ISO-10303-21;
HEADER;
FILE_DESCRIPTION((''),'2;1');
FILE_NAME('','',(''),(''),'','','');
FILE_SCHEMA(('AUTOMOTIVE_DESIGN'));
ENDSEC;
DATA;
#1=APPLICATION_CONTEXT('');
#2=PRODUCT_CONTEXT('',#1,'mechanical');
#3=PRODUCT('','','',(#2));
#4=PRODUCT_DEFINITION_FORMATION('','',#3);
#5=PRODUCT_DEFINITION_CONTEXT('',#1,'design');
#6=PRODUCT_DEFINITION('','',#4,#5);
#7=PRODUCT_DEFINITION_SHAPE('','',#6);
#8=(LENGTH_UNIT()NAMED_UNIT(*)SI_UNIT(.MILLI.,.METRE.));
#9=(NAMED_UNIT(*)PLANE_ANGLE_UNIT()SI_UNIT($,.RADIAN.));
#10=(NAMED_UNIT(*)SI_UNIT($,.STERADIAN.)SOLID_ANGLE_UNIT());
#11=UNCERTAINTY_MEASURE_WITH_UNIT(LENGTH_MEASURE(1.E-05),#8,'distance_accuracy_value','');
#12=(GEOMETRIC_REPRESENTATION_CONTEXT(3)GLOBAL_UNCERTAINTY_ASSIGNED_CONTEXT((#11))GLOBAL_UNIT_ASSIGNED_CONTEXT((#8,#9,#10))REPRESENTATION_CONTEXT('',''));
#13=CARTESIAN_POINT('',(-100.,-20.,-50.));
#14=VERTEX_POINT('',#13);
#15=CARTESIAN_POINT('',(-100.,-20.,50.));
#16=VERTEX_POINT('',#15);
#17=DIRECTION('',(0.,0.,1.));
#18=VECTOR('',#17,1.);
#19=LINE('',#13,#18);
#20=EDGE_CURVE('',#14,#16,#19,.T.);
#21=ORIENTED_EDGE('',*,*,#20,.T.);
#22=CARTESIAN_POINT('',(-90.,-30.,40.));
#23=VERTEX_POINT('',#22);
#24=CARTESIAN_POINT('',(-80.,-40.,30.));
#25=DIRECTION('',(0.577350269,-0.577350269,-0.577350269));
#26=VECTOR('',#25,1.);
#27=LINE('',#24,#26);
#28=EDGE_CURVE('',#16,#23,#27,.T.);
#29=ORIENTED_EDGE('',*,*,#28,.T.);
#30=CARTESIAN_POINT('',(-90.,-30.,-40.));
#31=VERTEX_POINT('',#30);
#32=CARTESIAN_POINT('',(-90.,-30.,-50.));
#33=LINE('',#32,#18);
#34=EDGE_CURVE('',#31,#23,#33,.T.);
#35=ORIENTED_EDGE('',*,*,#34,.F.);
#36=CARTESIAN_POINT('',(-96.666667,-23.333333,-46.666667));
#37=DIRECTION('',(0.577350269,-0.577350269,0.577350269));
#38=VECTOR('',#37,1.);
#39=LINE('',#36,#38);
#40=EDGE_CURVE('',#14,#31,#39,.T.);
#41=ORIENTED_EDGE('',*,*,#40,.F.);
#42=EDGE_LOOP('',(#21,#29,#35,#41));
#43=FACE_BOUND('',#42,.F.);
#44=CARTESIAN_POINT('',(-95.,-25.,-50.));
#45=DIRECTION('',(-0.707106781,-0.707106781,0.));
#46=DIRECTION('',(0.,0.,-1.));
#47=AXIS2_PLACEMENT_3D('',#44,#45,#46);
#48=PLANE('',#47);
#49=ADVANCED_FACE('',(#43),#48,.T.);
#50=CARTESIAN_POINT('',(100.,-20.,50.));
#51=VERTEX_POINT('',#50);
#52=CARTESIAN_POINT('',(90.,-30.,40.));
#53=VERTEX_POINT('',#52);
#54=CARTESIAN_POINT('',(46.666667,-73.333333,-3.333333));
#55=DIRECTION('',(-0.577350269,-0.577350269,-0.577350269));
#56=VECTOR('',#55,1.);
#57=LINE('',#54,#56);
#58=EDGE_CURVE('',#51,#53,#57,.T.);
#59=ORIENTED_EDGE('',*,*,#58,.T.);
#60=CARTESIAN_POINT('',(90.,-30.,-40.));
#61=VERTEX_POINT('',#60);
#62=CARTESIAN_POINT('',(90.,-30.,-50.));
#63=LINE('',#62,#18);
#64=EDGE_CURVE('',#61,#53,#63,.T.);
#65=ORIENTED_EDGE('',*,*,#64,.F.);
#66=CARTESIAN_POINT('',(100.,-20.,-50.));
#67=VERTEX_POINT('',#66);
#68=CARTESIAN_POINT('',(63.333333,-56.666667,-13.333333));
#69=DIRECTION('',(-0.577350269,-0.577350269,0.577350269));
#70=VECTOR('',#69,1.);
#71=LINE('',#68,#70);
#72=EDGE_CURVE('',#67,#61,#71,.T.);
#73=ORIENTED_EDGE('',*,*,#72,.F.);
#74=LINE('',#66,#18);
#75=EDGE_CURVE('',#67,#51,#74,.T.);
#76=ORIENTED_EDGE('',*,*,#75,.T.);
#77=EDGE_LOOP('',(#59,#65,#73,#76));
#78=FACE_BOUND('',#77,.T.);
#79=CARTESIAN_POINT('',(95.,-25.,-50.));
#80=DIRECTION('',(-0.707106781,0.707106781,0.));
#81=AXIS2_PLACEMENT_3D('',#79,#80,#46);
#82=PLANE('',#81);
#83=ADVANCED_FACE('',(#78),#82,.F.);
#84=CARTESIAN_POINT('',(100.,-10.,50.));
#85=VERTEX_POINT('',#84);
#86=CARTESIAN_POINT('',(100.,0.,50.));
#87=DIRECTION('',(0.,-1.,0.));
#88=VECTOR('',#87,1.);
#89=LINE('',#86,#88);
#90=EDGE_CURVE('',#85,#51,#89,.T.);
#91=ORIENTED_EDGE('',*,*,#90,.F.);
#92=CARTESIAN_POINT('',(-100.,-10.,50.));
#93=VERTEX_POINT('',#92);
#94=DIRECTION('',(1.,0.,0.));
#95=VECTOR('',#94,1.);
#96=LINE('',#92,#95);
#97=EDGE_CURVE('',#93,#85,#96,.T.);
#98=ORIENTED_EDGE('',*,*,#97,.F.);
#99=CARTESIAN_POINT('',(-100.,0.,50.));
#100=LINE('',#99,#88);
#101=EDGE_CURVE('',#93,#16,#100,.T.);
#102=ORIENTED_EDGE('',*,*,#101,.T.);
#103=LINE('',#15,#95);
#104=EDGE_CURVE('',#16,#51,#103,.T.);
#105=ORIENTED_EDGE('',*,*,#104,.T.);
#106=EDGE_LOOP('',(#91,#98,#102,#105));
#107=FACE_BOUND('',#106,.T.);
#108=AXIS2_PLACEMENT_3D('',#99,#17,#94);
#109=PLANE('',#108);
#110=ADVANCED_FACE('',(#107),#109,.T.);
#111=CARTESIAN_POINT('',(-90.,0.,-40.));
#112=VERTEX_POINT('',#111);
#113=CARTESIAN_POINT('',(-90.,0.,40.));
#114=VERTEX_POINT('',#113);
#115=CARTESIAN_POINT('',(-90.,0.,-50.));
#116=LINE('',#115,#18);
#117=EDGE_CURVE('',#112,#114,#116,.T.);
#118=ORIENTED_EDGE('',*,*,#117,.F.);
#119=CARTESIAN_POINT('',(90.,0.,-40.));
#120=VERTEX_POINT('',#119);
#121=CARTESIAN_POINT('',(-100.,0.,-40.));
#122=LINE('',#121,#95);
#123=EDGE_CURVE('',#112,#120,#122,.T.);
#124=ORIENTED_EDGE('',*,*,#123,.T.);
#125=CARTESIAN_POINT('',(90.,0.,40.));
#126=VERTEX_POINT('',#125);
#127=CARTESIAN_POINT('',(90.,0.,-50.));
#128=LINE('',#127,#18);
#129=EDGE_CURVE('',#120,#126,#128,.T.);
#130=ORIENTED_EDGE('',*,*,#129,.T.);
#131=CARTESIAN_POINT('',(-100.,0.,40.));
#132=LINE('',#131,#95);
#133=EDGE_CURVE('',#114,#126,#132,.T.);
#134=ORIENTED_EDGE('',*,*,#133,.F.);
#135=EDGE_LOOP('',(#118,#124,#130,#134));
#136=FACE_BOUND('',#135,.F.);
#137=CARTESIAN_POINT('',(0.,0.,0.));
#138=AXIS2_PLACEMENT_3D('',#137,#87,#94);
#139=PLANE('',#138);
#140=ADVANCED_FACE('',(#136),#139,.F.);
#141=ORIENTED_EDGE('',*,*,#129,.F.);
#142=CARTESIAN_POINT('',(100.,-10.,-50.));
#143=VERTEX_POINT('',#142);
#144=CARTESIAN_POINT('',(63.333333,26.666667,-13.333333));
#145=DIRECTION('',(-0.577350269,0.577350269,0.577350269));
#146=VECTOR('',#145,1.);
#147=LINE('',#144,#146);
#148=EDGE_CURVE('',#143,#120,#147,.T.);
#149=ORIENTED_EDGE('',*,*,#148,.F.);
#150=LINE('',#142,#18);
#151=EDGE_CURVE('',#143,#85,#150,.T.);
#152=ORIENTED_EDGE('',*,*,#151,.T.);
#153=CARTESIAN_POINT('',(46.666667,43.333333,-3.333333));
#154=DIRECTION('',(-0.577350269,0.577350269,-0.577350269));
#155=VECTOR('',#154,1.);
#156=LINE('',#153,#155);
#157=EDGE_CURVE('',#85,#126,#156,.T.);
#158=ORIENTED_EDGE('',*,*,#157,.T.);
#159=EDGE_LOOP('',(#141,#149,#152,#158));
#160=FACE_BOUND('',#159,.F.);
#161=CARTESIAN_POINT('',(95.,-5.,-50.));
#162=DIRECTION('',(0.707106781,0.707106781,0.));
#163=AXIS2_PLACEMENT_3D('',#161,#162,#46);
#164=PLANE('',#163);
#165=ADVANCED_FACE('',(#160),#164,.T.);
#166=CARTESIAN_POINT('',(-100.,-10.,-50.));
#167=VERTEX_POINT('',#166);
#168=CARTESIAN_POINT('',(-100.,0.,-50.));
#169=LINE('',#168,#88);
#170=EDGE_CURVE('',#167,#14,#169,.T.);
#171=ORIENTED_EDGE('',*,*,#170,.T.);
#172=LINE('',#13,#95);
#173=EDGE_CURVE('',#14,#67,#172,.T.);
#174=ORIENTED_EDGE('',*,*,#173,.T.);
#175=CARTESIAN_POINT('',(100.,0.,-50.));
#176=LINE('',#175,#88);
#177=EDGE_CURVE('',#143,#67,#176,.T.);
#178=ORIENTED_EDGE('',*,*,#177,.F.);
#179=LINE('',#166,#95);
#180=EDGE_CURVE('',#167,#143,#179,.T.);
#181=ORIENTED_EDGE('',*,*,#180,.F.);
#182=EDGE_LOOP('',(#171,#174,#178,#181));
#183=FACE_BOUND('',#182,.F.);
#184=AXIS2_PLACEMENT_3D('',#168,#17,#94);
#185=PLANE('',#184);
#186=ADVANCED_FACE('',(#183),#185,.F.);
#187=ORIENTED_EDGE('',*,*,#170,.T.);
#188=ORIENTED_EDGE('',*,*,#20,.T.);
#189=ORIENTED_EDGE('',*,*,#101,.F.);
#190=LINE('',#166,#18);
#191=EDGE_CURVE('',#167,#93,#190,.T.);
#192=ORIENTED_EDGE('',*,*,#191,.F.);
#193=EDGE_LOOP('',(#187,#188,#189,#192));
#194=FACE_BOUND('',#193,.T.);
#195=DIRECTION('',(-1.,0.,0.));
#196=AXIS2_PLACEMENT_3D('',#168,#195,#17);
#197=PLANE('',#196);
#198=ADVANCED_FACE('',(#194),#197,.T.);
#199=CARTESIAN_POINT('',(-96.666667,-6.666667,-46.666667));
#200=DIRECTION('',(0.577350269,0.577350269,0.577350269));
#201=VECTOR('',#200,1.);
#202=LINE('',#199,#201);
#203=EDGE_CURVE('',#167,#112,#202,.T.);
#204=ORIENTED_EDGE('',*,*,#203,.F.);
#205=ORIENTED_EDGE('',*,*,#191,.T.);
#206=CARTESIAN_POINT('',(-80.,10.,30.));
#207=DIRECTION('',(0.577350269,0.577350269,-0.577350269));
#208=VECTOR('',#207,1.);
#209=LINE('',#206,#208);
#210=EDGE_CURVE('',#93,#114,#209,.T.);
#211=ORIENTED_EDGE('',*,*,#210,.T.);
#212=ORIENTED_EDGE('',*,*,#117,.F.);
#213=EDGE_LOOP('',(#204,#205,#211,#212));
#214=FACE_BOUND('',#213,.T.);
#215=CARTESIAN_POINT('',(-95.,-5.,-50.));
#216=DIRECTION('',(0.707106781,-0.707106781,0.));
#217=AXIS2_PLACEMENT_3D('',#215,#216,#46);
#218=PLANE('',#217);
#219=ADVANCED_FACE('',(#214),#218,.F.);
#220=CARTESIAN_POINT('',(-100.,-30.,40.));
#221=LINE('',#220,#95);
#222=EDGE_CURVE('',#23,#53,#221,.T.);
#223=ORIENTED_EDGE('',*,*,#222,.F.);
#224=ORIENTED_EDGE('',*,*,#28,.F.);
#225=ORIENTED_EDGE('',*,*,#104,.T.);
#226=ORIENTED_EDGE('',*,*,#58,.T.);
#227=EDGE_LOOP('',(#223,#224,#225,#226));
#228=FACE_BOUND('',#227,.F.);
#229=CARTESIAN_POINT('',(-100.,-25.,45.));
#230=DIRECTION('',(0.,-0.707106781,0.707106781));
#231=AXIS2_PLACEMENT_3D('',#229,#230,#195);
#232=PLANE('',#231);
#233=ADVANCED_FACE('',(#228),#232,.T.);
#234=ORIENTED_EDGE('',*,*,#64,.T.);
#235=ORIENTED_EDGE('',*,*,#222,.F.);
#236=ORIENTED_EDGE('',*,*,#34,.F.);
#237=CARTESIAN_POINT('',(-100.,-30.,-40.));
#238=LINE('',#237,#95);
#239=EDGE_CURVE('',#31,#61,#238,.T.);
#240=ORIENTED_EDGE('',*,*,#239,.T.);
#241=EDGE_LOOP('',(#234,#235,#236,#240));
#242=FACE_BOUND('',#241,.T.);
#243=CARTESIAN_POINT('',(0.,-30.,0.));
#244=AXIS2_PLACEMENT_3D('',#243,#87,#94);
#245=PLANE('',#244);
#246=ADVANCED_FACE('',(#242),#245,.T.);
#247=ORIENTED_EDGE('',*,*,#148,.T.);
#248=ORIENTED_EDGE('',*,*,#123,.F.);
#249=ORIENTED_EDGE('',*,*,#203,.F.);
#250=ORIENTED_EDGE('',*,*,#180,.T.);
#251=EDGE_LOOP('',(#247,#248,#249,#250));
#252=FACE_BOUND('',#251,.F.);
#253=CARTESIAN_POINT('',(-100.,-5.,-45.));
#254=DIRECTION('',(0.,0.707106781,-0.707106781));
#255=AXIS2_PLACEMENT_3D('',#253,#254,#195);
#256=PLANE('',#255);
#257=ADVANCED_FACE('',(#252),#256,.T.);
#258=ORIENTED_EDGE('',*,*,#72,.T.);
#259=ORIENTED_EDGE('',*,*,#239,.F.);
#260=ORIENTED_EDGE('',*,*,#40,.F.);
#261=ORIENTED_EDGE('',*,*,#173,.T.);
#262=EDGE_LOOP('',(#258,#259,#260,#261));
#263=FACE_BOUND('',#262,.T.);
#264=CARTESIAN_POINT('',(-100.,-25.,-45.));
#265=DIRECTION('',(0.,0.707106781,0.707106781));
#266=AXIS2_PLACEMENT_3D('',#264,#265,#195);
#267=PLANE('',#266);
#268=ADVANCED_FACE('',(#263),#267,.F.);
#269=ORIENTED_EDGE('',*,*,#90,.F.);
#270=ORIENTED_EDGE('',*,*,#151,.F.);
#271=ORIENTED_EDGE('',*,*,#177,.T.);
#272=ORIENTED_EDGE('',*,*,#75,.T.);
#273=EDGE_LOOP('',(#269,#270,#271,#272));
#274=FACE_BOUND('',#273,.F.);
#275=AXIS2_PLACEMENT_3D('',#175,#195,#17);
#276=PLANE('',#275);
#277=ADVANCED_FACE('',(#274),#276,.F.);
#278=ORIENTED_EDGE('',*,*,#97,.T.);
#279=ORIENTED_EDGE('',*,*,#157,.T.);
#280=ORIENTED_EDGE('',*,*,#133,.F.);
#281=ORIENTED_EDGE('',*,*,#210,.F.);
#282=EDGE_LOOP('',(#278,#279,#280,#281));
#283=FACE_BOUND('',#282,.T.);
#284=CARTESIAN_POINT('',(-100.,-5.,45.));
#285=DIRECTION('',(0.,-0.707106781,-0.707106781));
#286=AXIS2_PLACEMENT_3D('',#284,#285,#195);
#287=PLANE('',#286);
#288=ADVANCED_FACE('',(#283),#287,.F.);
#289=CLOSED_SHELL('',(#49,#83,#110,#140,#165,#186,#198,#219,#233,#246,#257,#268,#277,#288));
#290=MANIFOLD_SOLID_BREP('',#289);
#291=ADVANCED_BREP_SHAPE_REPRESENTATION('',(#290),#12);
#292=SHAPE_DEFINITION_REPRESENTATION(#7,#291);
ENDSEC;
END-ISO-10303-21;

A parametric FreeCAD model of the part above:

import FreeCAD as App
import Part
import Sketcher
Q = App.Units.Quantity


def edges_at(feature, points):
    """Names of the edges that pass closest to the given points."""
    edges = feature.Shape.Edges
    near = lambda p: min(range(len(edges)), key=lambda i: edges[i].distToShape(Part.Vertex(*p))[0])
    return sorted({f"Edge{near(p) + 1}" for p in points})

doc = App.newDocument("Part")
body = doc.addObject("PartDesign::Body", "Body")

# Sketch on XZ plane
sketch1 = doc.addObject("Sketcher::SketchObject", "Sketch")
body.addObject(sketch1)
sketch1.AttachmentSupport = (doc.XZ_Plane, [""])
sketch1.MapMode = "FlatFace"
sketch1.addGeometry([
    Part.LineSegment(App.Vector(-100, 50, 0), App.Vector(-100, -50, 0)),
    Part.LineSegment(App.Vector(-100, -50, 0), App.Vector(100, -50, 0)),
    Part.LineSegment(App.Vector(100, -50, 0), App.Vector(100, 50, 0)),
    Part.LineSegment(App.Vector(100, 50, 0), App.Vector(-100, 50, 0)),
], False)
sketch1.addConstraint([
    Sketcher.Constraint("Coincident", 0, 2, 1, 1),
    Sketcher.Constraint("Coincident", 1, 2, 2, 1),
    Sketcher.Constraint("Coincident", 2, 2, 3, 1),
    Sketcher.Constraint("Coincident", 3, 2, 0, 1),
    Sketcher.Constraint("Vertical", 0),
    Sketcher.Constraint("Horizontal", 1),
    Sketcher.Constraint("Vertical", 2),
    Sketcher.Constraint("Horizontal", 3),
    Sketcher.Constraint("Symmetric", 0, 2, 2, 2, -1, 1),
    Sketcher.Constraint("DistanceX", 1, 1, 1, 2, Q("200 mm")),
    Sketcher.Constraint("DistanceY", 0, 2, 0, 1, Q("100 mm")),
])
pad1 = doc.addObject("PartDesign::Pad", "Pad")
body.addObject(pad1)
pad1.Profile = sketch1
pad1.Length = 30
doc.recompute()

chamfer = doc.addObject("PartDesign::Chamfer", "Chamfer")
body.addObject(chamfer)
chamfer.Base = (pad1, edges_at(pad1, [
    (0, -30, 50),
    (0, -30, -50),
    (100, -30, 0),
    (-100, -30, 0),
    (-100, 0, 0),
    (0, 0, 50),
    (0, 0, -50),
    (100, 0, 0),
]))
chamfer.ChamferType = "Two distances"
chamfer.Size = 10
chamfer.Size2 = 10

doc.recompute()
